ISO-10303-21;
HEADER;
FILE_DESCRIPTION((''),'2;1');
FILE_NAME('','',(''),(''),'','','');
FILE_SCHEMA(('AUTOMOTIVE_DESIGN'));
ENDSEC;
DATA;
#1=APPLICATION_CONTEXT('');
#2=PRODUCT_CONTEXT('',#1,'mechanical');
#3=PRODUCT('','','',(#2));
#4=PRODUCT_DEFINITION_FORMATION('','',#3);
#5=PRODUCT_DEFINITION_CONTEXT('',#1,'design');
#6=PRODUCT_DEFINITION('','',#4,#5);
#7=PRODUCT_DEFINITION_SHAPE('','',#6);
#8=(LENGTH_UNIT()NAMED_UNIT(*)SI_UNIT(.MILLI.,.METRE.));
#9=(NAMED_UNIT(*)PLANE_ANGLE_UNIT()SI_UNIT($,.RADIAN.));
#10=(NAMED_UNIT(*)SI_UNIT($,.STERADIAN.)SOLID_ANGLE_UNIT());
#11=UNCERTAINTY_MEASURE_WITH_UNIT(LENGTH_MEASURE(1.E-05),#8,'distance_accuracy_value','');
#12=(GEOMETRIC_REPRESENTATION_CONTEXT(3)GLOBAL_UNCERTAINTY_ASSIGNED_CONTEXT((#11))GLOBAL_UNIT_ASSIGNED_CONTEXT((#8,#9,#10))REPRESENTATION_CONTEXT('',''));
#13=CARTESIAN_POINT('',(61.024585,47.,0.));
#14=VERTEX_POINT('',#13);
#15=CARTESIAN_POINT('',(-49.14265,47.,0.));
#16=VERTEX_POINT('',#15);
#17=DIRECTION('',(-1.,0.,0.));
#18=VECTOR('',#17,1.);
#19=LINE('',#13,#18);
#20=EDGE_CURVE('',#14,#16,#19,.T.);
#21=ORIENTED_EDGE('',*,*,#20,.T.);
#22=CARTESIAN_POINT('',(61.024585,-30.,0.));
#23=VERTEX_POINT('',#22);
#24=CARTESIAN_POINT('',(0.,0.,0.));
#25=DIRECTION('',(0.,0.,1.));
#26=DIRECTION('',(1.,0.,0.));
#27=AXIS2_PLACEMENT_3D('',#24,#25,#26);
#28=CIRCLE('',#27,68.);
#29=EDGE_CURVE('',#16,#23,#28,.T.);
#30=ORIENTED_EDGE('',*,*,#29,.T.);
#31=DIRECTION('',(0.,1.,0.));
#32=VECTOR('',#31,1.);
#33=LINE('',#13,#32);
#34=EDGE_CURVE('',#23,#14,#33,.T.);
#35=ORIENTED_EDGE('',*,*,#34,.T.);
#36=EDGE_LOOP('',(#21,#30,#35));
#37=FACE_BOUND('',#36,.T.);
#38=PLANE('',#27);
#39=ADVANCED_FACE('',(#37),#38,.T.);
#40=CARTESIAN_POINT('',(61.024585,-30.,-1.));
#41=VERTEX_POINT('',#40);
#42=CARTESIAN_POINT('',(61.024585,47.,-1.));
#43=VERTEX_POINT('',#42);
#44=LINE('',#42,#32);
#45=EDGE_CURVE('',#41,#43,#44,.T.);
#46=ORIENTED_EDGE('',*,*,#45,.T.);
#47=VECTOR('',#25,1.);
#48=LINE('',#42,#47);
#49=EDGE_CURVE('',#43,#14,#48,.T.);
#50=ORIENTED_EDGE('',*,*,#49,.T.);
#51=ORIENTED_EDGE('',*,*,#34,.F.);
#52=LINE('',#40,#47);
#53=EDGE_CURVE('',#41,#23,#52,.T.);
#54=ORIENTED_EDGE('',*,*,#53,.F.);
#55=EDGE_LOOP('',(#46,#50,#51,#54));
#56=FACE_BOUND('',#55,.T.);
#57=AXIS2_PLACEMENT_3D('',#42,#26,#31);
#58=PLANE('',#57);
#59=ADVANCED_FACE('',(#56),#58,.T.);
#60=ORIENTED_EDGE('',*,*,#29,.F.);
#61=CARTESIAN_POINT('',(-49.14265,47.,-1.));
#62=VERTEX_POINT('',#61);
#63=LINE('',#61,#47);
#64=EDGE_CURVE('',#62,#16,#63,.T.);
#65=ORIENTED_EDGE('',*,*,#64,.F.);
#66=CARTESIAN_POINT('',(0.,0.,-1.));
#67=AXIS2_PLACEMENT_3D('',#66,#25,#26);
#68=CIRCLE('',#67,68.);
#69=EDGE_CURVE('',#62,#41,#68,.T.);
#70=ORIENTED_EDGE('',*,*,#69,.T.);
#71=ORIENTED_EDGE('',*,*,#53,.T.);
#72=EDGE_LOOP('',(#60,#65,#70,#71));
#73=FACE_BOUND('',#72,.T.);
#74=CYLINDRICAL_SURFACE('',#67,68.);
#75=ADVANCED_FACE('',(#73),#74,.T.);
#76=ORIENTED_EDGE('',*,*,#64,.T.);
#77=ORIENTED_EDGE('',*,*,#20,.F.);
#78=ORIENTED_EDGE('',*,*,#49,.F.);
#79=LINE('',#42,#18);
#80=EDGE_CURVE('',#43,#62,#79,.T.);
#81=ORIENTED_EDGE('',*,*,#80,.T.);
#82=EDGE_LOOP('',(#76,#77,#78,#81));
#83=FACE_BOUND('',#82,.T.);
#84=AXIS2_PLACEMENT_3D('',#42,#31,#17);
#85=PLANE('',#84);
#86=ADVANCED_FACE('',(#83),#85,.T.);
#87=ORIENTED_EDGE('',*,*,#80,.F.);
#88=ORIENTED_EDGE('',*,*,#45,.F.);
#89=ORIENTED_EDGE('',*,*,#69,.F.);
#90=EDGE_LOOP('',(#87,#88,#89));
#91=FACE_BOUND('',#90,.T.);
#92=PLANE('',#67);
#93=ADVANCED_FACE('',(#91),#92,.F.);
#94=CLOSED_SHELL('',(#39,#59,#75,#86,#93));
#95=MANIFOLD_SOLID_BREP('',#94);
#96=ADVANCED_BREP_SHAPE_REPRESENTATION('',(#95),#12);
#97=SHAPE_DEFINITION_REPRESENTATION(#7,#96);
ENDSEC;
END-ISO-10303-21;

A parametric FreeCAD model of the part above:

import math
import FreeCAD as App
import Part
import Sketcher

V = App.Vector

doc = App.newDocument("Part")
body = doc.addObject("PartDesign::Body", "Body")

# Sketch on XY plane
sketch1 = body.newObject("Sketcher::SketchObject", "Sketch")
sketch1.AttachmentSupport = (doc.getObject("XY_Plane"), [""])
sketch1.MapMode = "FlatFace"
sketch1.addGeometry([
    Part.LineSegment(V(61, -30, 0), V(61, 47, 0)),
    Part.LineSegment(V(61, 47, 0), V(-49, 47, 0)),
    Part.ArcOfCircle(Part.Circle(V(0, 0, 0), V(0, 0, 1), 68), math.radians(136), math.radians(334)),
], False)
sketch1.addConstraint([
    Sketcher.Constraint("Coincident", 0, 2, 1, 1),
    Sketcher.Constraint("Coincident", 1, 2, 2, 1),
    Sketcher.Constraint("Coincident", 2, 2, 0, 1),
    Sketcher.Constraint("Vertical", 0),
    Sketcher.Constraint("Horizontal", 1),
    Sketcher.Constraint("Coincident", 2, 3, -1, 1),
    Sketcher.Constraint("Radius", 2, 68.0),
    Sketcher.Constraint("DistanceY", 0, 1, 0, 2, 77.0),
    Sketcher.Constraint("DistanceY", -1, 1, 0, 2, 47.0),
])
pad1 = body.newObject("PartDesign::Pad", "Pad")
pad1.Profile = sketch1
pad1.Length = 1
pad1.Reversed = True

doc.recompute()
